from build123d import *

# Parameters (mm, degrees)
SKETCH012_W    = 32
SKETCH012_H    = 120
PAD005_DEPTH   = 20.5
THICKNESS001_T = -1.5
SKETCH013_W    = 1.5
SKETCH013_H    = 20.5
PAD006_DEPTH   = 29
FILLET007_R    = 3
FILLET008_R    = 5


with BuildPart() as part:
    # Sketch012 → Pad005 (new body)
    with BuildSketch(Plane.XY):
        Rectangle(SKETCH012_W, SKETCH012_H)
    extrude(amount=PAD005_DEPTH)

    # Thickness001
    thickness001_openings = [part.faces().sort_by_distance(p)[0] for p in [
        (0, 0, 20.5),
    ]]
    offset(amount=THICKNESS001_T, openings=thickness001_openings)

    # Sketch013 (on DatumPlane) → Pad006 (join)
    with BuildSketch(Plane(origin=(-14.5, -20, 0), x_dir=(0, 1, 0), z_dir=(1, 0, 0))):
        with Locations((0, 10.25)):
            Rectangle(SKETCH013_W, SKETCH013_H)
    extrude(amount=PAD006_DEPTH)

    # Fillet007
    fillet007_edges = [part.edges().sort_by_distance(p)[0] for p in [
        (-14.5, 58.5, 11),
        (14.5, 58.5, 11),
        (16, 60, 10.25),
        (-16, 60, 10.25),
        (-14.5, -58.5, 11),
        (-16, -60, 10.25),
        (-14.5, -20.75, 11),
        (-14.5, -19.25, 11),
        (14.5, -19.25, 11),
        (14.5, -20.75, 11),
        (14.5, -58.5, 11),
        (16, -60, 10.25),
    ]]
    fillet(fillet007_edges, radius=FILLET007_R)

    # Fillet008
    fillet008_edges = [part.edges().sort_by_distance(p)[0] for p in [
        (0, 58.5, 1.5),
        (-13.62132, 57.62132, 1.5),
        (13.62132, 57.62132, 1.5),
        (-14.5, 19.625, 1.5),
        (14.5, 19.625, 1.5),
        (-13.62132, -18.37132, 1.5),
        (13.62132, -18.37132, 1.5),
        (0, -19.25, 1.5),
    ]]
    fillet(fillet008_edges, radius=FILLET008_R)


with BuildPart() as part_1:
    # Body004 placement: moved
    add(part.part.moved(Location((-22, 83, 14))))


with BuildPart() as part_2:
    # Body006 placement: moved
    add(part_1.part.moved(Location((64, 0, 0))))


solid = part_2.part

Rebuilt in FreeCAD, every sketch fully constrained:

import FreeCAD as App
import Part
import Sketcher


def edges_at(feature, points):
    """Names of the edges that pass closest to the given points."""
    edges = feature.Shape.Edges
    near = lambda p: min(range(len(edges)), key=lambda i: edges[i].distToShape(Part.Vertex(*p))[0])
    return sorted({f"Edge{near(p) + 1}" for p in points})


def faces_at(feature, points):
    """Names of the faces that lie closest to the given points."""
    faces = feature.Shape.Faces
    near = lambda p: min(range(len(faces)), key=lambda i: faces[i].distToShape(Part.Vertex(*p))[0])
    return sorted({f"Face{near(p) + 1}" for p in points})

doc = App.newDocument("Part")
body = doc.addObject("PartDesign::Body", "Body")

# Sketch on XY plane
sketch1 = doc.addObject("Sketcher::SketchObject", "Sketch")
body.addObject(sketch1)
sketch1.AttachmentSupport = (doc.XY_Plane, [""])
sketch1.MapMode = "FlatFace"
sketch1.addGeometry([
    Part.LineSegment(App.Vector(-16, 60, 0), App.Vector(-16, -60, 0)),
    Part.LineSegment(App.Vector(-16, -60, 0), App.Vector(16, -60, 0)),
    Part.LineSegment(App.Vector(16, -60, 0), App.Vector(16, 60, 0)),
    Part.LineSegment(App.Vector(16, 60, 0), App.Vector(-16, 60, 0)),
], False)
sketch1.addConstraint([
    Sketcher.Constraint("Coincident", 0, 2, 1, 1),
    Sketcher.Constraint("Coincident", 1, 2, 2, 1),
    Sketcher.Constraint("Coincident", 2, 2, 3, 1),
    Sketcher.Constraint("Coincident", 3, 2, 0, 1),
    Sketcher.Constraint("Vertical", 0),
    Sketcher.Constraint("Horizontal", 1),
    Sketcher.Constraint("Vertical", 2),
    Sketcher.Constraint("Horizontal", 3),
    Sketcher.Constraint("Symmetric", 0, 2, 2, 2, -1, 1),
    Sketcher.Constraint("DistanceX", 1, 1, 1, 2, 32.0),
    Sketcher.Constraint("DistanceY", 0, 2, 0, 1, 120.0),
])
pad1 = doc.addObject("PartDesign::Pad", "Pad")
body.addObject(pad1)
pad1.Profile = sketch1
pad1.Length = 20.5
doc.recompute()

thickness = doc.addObject("PartDesign::Thickness", "Thickness")
body.addObject(thickness)
thickness.Base = (pad1, faces_at(pad1, [(0, 0, 20.5)]))
thickness.Value = 1.5
thickness.Reversed = True
thickness.Join = "Arc"

# Sketch on YZ plane
sketch2 = doc.addObject("Sketcher::SketchObject", "Sketch001")
body.addObject(sketch2)
sketch2.AttachmentSupport = (doc.YZ_Plane, [""])
sketch2.MapMode = "FlatFace"
sketch2.AttachmentOffset = App.Placement(App.Vector(0, 0, -14.5), App.Rotation())
sketch2.addGeometry([
    Part.LineSegment(App.Vector(-20.8, 20.5, 0), App.Vector(-20.8, 0, 0)),
    Part.LineSegment(App.Vector(-20.8, 0, 0), App.Vector(-19.2, 0, 0)),
    Part.LineSegment(App.Vector(-19.2, 0, 0), App.Vector(-19.2, 20.5, 0)),
    Part.LineSegment(App.Vector(-19.2, 20.5, 0), App.Vector(-20.8, 20.5, 0)),
], False)
sketch2.addConstraint([
    Sketcher.Constraint("Coincident", 0, 2, 1, 1),
    Sketcher.Constraint("Coincident", 1, 2, 2, 1),
    Sketcher.Constraint("Coincident", 2, 2, 3, 1),
    Sketcher.Constraint("Coincident", 3, 2, 0, 1),
    Sketcher.Constraint("Vertical", 0),
    Sketcher.Constraint("Horizontal", 1),
    Sketcher.Constraint("Vertical", 2),
    Sketcher.Constraint("Horizontal", 3),
    Sketcher.Constraint("PointOnObject", 0, 2, -1),
    Sketcher.Constraint("DistanceX", 1, 1, 1, 2, 1.5),
    Sketcher.Constraint("DistanceY", 0, 2, 0, 1, 20.5),
    Sketcher.Constraint("DistanceX", 0, 2, -1, 1, 20.75),
])
pad2 = doc.addObject("PartDesign::Pad", "Pad001")
body.addObject(pad2)
pad2.Profile = sketch2
pad2.Length = 29
doc.recompute()

fillet = doc.addObject("PartDesign::Fillet", "Fillet")
body.addObject(fillet)
fillet.Base = (pad2, edges_at(pad2, [
    (-14.5, 58.5, 11),
    (14.5, 58.5, 11),
    (16, 60, 10.25),
    (-16, 60, 10.25),
    (-14.5, -58.5, 11),
    (-16, -60, 10.25),
    (-14.5, -20.75, 11),
    (-14.5, -19.25, 11),
    (14.5, -19.25, 11),
    (14.5, -20.75, 11),
    (14.5, -58.5, 11),
    (16, -60, 10.25),
]))
fillet.Radius = 3
doc.recompute()

fillet2 = doc.addObject("PartDesign::Fillet", "Fillet001")
body.addObject(fillet2)
fillet2.Base = (fillet, edges_at(fillet, [
    (0, 58.5, 1.5),
    (-13.621, 57.621, 1.5),
    (13.621, 57.621, 1.5),
    (-14.5, 19.625, 1.5),
    (14.5, 19.625, 1.5),
    (-13.621, -18.371, 1.5),
    (13.621, -18.371, 1.5),
    (0, -19.25, 1.5),
]))
fillet2.Radius = 5
body2 = doc.addObject("PartDesign::Body", "Body001")
doc.recompute()

body.Placement = App.Placement(App.Vector(-22, 83, 14), App.Rotation(App.Vector(0, 0, 1), 0))
boolean = doc.addObject("PartDesign::Boolean", "Boolean")
body2.addObject(boolean)
boolean.Type = "Fuse"
boolean.addObjects([body])
body3 = doc.addObject("PartDesign::Body", "Body002")
doc.recompute()

body2.Placement = App.Placement(App.Vector(64, 0, 0), App.Rotation(App.Vector(0, 0, 1), 0))
boolean2 = doc.addObject("PartDesign::Boolean", "Boolean001")
body3.addObject(boolean2)
boolean2.Type = "Fuse"
boolean2.addObjects([body2])

doc.recompute()
